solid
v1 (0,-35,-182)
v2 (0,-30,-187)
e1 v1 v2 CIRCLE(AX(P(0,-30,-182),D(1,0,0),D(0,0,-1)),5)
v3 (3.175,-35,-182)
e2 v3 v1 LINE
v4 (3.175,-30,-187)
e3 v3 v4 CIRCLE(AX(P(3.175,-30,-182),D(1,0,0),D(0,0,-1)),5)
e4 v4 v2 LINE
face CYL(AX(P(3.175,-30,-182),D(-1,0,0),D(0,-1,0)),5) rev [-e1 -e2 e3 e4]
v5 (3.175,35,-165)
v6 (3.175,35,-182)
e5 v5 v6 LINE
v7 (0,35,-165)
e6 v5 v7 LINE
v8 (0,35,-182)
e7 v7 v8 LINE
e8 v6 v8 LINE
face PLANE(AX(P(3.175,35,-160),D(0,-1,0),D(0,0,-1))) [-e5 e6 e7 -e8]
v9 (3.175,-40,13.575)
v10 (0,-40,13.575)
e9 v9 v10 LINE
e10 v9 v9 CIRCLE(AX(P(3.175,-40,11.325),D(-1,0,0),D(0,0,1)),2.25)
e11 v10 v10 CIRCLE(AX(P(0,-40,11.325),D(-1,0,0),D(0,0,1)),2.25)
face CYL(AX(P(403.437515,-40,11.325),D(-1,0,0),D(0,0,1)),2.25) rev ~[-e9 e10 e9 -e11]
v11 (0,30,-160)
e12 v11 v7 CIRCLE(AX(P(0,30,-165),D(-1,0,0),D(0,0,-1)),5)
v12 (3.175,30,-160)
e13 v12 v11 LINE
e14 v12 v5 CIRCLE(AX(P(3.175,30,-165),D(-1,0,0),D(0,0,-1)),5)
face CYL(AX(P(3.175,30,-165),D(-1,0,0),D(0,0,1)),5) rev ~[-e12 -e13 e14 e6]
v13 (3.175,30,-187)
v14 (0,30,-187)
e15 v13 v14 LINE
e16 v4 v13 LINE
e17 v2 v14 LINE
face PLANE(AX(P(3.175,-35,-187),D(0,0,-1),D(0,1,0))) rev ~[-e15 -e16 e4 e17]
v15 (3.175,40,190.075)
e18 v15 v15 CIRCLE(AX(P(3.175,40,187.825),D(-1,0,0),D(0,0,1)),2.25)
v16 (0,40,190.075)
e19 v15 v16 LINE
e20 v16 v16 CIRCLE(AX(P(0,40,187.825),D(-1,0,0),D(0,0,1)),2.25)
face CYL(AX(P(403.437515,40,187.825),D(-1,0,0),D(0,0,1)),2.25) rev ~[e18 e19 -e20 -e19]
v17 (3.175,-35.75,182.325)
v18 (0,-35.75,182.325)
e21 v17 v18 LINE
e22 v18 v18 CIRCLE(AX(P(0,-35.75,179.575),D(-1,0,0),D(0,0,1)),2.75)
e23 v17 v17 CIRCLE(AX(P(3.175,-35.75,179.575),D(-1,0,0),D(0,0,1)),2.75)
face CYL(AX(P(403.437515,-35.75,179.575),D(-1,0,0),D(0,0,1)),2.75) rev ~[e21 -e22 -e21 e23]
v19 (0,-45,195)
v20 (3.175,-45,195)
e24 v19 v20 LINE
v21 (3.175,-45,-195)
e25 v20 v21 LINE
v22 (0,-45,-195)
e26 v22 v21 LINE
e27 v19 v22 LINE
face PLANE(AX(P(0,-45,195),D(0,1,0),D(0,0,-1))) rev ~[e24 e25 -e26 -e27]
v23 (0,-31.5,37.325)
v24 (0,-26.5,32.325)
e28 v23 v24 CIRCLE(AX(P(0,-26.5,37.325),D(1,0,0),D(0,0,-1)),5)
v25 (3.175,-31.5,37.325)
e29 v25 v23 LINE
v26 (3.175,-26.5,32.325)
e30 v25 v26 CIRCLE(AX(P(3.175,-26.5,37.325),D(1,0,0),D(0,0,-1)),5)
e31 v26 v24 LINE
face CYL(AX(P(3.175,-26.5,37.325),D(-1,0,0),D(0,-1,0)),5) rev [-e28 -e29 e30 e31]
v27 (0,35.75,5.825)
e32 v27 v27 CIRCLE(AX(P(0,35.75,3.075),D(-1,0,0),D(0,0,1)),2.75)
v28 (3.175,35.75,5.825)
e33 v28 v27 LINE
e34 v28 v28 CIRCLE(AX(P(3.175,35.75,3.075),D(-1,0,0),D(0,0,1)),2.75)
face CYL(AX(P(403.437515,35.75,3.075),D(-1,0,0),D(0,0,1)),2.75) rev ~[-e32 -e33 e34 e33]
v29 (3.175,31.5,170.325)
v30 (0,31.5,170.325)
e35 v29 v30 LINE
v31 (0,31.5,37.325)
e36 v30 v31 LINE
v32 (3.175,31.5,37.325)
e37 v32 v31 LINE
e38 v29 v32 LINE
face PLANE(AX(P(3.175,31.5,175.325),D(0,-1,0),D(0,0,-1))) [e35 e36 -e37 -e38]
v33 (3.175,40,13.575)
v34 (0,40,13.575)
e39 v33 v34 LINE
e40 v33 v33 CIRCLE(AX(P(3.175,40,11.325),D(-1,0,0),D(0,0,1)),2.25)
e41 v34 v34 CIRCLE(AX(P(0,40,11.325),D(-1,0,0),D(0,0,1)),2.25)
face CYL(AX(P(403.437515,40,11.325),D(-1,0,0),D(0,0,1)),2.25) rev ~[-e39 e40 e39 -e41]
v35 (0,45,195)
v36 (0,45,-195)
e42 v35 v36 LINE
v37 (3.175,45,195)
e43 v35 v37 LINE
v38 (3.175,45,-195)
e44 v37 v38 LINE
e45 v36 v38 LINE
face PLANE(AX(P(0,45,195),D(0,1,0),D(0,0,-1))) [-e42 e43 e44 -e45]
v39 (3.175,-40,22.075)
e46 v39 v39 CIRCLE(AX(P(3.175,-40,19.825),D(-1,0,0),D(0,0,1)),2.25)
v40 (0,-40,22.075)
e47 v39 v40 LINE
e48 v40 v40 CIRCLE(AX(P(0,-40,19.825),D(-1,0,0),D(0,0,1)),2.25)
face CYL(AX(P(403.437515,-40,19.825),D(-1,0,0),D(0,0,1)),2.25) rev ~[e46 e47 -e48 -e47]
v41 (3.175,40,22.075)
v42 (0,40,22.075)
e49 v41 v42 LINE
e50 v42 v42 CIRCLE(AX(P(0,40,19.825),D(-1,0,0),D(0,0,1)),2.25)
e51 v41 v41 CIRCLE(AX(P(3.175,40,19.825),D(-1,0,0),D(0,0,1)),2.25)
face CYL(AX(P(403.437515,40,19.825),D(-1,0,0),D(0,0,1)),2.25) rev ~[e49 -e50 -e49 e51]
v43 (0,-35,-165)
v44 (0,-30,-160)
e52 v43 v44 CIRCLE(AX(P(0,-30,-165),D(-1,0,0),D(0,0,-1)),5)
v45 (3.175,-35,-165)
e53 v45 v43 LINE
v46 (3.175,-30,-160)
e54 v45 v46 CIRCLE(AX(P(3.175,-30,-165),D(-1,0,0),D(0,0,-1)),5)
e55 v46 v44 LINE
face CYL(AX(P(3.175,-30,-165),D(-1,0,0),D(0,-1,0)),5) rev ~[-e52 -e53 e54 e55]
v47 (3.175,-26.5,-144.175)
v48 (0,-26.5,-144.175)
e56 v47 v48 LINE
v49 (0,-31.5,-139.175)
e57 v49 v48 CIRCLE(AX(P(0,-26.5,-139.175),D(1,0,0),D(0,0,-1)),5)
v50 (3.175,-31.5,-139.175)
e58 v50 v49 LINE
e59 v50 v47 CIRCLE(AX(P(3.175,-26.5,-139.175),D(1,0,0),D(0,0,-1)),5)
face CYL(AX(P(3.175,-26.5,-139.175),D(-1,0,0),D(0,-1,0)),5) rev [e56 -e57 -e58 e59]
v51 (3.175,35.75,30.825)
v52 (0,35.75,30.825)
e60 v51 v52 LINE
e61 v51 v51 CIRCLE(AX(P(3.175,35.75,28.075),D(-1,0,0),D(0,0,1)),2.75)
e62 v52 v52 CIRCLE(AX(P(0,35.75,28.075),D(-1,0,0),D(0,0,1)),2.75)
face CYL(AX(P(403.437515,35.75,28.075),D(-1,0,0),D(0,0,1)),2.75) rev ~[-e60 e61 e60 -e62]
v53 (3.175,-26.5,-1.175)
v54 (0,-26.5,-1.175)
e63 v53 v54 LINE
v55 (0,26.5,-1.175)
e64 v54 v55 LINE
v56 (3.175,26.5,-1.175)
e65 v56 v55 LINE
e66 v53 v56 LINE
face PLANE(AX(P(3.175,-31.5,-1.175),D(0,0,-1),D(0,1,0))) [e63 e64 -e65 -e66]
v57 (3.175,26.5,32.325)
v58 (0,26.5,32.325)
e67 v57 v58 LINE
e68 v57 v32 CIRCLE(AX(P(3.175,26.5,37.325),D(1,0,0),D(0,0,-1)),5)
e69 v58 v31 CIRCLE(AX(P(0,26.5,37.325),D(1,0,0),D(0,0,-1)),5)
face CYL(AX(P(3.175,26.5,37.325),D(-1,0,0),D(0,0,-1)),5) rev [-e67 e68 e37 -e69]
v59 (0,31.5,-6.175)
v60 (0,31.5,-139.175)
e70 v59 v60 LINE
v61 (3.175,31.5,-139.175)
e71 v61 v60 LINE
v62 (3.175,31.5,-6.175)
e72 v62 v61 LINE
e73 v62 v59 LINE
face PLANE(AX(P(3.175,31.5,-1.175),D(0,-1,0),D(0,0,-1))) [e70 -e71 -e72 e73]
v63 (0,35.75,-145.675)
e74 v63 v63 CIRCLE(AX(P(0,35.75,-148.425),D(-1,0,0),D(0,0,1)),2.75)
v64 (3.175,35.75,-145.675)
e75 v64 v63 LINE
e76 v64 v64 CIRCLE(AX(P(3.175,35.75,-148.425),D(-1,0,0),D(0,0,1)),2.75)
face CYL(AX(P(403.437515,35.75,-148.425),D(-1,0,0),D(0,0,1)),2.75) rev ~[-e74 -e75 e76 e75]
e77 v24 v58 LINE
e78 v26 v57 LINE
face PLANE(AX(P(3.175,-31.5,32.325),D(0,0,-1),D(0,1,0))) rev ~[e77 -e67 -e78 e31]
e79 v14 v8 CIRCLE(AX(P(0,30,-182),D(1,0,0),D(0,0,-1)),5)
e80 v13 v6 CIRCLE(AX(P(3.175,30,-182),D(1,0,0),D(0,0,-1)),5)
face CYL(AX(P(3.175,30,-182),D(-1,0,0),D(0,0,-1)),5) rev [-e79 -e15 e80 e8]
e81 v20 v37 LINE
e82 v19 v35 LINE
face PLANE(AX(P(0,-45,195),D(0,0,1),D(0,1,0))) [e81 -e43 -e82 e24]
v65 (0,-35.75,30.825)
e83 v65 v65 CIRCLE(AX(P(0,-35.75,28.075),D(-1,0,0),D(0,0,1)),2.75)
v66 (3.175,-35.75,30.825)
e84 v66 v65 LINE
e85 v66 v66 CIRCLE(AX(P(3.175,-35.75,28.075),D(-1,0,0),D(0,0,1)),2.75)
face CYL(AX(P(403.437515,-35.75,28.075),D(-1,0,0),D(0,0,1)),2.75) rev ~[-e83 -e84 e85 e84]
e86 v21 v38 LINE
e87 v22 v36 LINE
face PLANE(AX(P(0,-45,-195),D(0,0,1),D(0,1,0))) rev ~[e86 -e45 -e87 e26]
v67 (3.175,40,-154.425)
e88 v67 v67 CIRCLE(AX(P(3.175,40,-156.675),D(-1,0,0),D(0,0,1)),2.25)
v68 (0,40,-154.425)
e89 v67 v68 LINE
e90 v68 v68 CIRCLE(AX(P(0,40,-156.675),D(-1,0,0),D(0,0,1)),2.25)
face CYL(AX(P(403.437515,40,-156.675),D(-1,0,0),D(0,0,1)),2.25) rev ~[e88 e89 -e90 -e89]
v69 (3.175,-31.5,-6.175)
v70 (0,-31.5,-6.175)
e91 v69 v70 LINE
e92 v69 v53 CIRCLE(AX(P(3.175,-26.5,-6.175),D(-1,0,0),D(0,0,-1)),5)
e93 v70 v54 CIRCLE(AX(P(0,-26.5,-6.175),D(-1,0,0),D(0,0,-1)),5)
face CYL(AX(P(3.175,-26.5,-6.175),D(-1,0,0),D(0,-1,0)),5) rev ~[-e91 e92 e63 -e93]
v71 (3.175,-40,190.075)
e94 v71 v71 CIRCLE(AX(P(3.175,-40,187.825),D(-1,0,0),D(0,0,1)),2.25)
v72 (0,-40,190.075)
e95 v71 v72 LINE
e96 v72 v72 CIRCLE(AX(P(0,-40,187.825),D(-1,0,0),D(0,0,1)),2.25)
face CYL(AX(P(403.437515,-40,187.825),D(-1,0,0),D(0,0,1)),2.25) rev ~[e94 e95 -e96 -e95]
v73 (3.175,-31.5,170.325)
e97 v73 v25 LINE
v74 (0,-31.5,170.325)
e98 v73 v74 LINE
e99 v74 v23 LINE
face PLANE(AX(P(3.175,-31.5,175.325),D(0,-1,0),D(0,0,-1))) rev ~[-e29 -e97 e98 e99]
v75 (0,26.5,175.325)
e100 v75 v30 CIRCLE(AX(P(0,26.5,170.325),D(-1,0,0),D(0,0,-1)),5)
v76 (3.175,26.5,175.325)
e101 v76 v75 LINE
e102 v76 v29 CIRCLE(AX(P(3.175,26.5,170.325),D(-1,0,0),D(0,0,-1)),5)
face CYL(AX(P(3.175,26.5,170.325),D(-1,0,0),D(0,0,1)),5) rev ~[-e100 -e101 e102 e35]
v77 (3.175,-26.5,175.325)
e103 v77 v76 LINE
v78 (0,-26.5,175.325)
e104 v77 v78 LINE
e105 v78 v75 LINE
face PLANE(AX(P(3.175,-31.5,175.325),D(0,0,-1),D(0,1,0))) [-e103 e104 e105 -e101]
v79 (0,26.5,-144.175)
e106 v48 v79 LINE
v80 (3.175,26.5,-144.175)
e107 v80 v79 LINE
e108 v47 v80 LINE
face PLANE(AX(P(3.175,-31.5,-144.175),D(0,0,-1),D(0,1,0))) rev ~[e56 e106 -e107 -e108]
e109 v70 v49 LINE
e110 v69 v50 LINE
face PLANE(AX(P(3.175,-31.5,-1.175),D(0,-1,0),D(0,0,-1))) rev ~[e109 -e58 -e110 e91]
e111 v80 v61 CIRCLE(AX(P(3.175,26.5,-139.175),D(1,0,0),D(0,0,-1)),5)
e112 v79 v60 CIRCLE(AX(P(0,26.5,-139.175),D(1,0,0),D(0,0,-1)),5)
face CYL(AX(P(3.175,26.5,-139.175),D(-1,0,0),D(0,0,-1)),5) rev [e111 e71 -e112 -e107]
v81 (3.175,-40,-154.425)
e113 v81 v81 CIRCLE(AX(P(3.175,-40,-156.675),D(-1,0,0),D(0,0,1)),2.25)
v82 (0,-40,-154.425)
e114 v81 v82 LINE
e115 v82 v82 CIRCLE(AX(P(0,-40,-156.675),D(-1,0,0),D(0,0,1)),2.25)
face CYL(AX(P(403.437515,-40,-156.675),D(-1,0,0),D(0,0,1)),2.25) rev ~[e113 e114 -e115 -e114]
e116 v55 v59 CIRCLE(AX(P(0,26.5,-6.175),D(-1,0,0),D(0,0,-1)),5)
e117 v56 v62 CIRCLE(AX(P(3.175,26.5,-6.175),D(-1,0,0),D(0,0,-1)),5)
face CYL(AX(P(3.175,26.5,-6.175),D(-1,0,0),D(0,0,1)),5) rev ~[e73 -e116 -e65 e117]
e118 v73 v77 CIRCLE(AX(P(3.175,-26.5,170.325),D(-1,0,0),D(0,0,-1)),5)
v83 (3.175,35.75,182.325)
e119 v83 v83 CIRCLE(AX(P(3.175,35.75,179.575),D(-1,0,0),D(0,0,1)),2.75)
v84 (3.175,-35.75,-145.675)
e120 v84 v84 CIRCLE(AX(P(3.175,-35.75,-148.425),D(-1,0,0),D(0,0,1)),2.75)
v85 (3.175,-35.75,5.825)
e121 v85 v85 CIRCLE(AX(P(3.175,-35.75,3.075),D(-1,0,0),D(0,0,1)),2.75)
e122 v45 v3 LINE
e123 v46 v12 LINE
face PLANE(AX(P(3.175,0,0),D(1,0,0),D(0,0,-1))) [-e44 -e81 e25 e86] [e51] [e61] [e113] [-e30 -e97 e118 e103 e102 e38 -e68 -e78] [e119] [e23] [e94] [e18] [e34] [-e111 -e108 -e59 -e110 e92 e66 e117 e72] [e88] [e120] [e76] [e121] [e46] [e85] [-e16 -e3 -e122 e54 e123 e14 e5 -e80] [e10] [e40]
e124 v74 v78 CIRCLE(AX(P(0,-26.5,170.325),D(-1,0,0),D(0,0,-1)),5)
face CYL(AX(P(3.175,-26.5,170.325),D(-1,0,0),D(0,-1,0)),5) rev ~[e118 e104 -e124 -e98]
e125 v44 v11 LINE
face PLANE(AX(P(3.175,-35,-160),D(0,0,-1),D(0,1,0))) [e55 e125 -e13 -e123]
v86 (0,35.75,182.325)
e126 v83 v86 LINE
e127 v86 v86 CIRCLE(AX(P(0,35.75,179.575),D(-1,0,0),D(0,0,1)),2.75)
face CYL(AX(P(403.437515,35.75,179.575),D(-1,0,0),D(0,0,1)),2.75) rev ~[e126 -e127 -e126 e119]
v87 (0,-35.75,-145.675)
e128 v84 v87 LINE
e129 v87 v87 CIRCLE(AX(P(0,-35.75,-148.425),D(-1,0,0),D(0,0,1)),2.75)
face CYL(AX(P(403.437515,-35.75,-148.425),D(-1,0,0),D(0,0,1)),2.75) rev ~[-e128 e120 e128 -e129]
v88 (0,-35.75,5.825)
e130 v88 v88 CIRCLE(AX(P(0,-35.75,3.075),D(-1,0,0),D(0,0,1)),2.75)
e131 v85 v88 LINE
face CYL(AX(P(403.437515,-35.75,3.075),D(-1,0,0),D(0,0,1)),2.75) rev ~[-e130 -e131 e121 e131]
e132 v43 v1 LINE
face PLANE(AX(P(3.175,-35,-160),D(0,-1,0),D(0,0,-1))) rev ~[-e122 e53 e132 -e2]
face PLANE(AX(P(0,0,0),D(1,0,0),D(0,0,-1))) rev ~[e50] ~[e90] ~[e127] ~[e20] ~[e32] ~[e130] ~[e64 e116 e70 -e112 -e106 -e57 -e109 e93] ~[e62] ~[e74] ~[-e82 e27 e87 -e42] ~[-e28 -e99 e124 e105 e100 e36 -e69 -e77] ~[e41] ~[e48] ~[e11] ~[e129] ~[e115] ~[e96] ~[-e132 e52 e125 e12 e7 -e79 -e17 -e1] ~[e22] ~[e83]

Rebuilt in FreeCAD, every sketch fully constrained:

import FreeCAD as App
import Part
import Sketcher
from FreeCAD import Vector


def edges_at(feature, points):
    """Names of the edges that pass closest to the given points."""
    edges = feature.Shape.Edges
    near = lambda p: min(range(len(edges)), key=lambda i: edges[i].distToShape(Part.Vertex(*p))[0])
    return sorted({f"Edge{near(p) + 1}" for p in points})


def add_polygon(sketch, points):
    """Adds a closed chain of lines whose ends are joined by coincident constraints."""
    first, n = sketch.GeometryCount, len(points)
    for a, b in zip(points, points[1:] + points[:1]):
        sketch.addGeometry(Part.LineSegment(App.Vector(*a, 0), App.Vector(*b, 0)), False)
    for i in range(n):
        sketch.addConstraint(Sketcher.Constraint("Coincident", first + i, 2, first + (i + 1) % n, 1))

doc = App.newDocument("Part")
params = doc.addObject("Spreadsheet::Sheet", "Params")
for row, (alias, value) in enumerate([
    ("sketch1_width", "90 mm"),
    ("sketch1_height", "390 mm"),
    ("pad1_length", "3.175 mm"),
    ("sketch2_width", "63 mm"),
    ("sketch2_height", "143 mm"),
    ("pocket1_length", "3.175 mm"),
    ("sketch3_diameter", "5.5 mm"),
    ("hole_diameter", "5.5 mm"),
    ("sketch4_width", "70 mm"),
    ("sketch4_height", "27 mm"),
    ("pocket2_length", "3.175 mm"),
    ("sketch5_diameter", "4.5 mm"),
    ("hole2_diameter", "4.5 mm"),
    ("fillet_radius", "5 mm"),
], start=1):
    params.set(f"A{row}", alias)
    params.set(f"B{row}", "=" + value)
    params.setAlias(f"B{row}", alias)

body = doc.addObject("PartDesign::Body", "Body")

# Sketch on YZ plane
sketch1 = body.newObject("Sketcher::SketchObject", "Sketch")
sketch1.AttachmentSupport = (doc.getObject("YZ_Plane"), [""])
sketch1.MapMode = "FlatFace"
add_polygon(sketch1, [(45, 195), (-45, 195), (-45, -195), (45, -195)])  # lines 0-3
sketch1.addConstraint([
    Sketcher.Constraint("Horizontal", 0),
    Sketcher.Constraint("Vertical", 1),
    Sketcher.Constraint("Horizontal", 2),
    Sketcher.Constraint("Vertical", 3),
    Sketcher.Constraint("Symmetric", 0, 2, 2, 2, -1, 1),
    Sketcher.Constraint("DistanceX", 0, 2, 0, 1, 90.0),
    Sketcher.Constraint("DistanceY", 1, 2, 1, 1, 390.0),
])
sketch1.setExpression("Constraints[9]", "Params.sketch1_width")
sketch1.setExpression("Constraints[10]", "Params.sketch1_height")
pad1 = body.newObject("PartDesign::Pad", "Pad")
pad1.Profile = sketch1
pad1.setExpression("Length", "Params.pad1_length")

# Sketch on YZ plane
sketch2 = body.newObject("Sketcher::SketchObject", "Sketch001")
sketch2.AttachmentSupport = (doc.getObject("YZ_Plane"), [""])
sketch2.MapMode = "FlatFace"
sketch2.AttachmentOffset = App.Placement(Vector(0, 0, 3.175), App.Rotation())
add_polygon(sketch2, [(31.5, -1.175), (-31.5, -1.175), (-31.5, -144.175), (31.5, -144.175)])  # lines 0-3
add_polygon(sketch2, [(31.5, 175.325), (-31.5, 175.325), (-31.5, 32.325), (31.5, 32.325)])  # lines 4-7
sketch2.addConstraint([
    Sketcher.Constraint("Horizontal", 0),
    Sketcher.Constraint("Vertical", 1),
    Sketcher.Constraint("Horizontal", 2),
    Sketcher.Constraint("Vertical", 3),
    Sketcher.Constraint("Horizontal", 4),
    Sketcher.Constraint("Vertical", 5),
    Sketcher.Constraint("Horizontal", 6),
    Sketcher.Constraint("Vertical", 7),
    Sketcher.Constraint("Vertical", 1, 2, 4, 2),
    Sketcher.Constraint("Vertical", 3, 2, 6, 2),
    Sketcher.Constraint("Equal", 3, 5),
    Sketcher.Constraint("DistanceX", 0, 2, 0, 1, 63.0),
    Sketcher.Constraint("DistanceY", 1, 2, 1, 1, 143.0),
    Sketcher.Constraint("DistanceX", 0, 2, -1, 1, 31.5),
    Sketcher.Constraint("DistanceY", 0, 2, 4, 2, 176.5),
    Sketcher.Constraint("DistanceY", 0, 2, -1, 1, 1.175),
])
sketch2.setExpression("Constraints[19]", "Params.sketch2_width")
sketch2.setExpression("Constraints[20]", "Params.sketch2_height")
pocket1 = body.newObject("PartDesign::Pocket", "Pocket")
pocket1.Profile = sketch2
pocket1.setExpression("Length", "Params.pocket1_length")

# Sketch on YZ plane
sketch3 = body.newObject("Sketcher::SketchObject", "Sketch002")
sketch3.AttachmentSupport = (doc.getObject("YZ_Plane"), [""])
sketch3.MapMode = "FlatFace"
sketch3.AttachmentOffset = App.Placement(Vector(0, 0, 3.175), App.Rotation())
sketch3.addGeometry([
    Part.Circle(Vector(0, 103.825, 0), Vector(0, 0, 1), 2.75),  # 0
    Part.Circle(Vector(35.75, 28.075, 0), Vector(0, 0, 1), 2.75),  # 1
    Part.Circle(Vector(-35.75, 179.575, 0), Vector(0, 0, 1), 2.75),  # 2
    Part.Circle(Vector(35.75, 179.575, 0), Vector(0, 0, 1), 2.75),  # 3
    Part.Circle(Vector(-35.75, 28.075, 0), Vector(0, 0, 1), 2.75),  # 4
    Part.Circle(Vector(0, -72.675, 0), Vector(0, 0, 1), 2.75),  # 5
    Part.Circle(Vector(35.75, -148.425, 0), Vector(0, 0, 1), 2.75),  # 6
    Part.Circle(Vector(-35.75, 3.075, 0), Vector(0, 0, 1), 2.75),  # 7
    Part.Circle(Vector(35.75, 3.075, 0), Vector(0, 0, 1), 2.75),  # 8
    Part.Circle(Vector(-35.75, -148.425, 0), Vector(0, 0, 1), 2.75),  # 9
], False)
sketch3.addConstraint([
    Sketcher.Constraint("Equal", 0, 1),
    Sketcher.Constraint("Equal", 1, 2),
    Sketcher.Constraint("Equal", 2, 3),
    Sketcher.Constraint("Equal", 3, 4),
    Sketcher.Constraint("Equal", 4, 5),
    Sketcher.Constraint("Equal", 5, 6),
    Sketcher.Constraint("Equal", 6, 7),
    Sketcher.Constraint("Equal", 7, 8),
    Sketcher.Constraint("Equal", 8, 9),
    Sketcher.Constraint("Symmetric", 2, 3, 3, 3, -2),
    Sketcher.Constraint("Symmetric", 1, 3, 4, 3, -2),
    Sketcher.Constraint("Symmetric", 7, 3, 8, 3, -2),
    Sketcher.Constraint("Symmetric", 6, 3, 9, 3, -2),
    Sketcher.Constraint("PointOnObject", 0, 3, -2),
    Sketcher.Constraint("PointOnObject", 5, 3, -2),
    Sketcher.Constraint("Vertical", 1, 3, 3, 3),
    Sketcher.Constraint("Vertical", 3, 3, 6, 3),
    Sketcher.Constraint("Vertical", 4, 3, 7, 3),
    Sketcher.Constraint("Diameter", 0, 5.5),
    Sketcher.Constraint("DistanceY", 6, 3, 3, 3, 328.0),
    Sketcher.Constraint("DistanceY", 7, 3, 4, 3, 25.0),
    Sketcher.Constraint("DistanceX", 2, 3, 1, 3, 71.5),
    Sketcher.Constraint("DistanceY", 1, 3, 2, 3, 151.5),
    Sketcher.Constraint("DistanceY", 5, 3, 0, 3, 176.5),
    Sketcher.Constraint("DistanceY", 1, 3, 0, 3, 75.75),
    Sketcher.Constraint("DistanceY", -1, 1, 0, 3, 103.825),
])
sketch3.setExpression("Constraints[18]", "Params.sketch3_diameter")
doc.recompute()
hole = body.newObject("PartDesign::Hole", "Hole")
hole.Profile = sketch3
hole.ThreadType = "None"
hole.setExpression("Diameter", "Params.hole_diameter")
hole.DepthType = "ThroughAll"

# Sketch on YZ plane
sketch4 = body.newObject("Sketcher::SketchObject", "Sketch003")
sketch4.AttachmentSupport = (doc.getObject("YZ_Plane"), [""])
sketch4.MapMode = "FlatFace"
sketch4.AttachmentOffset = App.Placement(Vector(0, 0, 3.175), App.Rotation())
add_polygon(sketch4, [(35, -160), (-35, -160), (-35, -187), (35, -187)])  # lines 0-3
sketch4.addConstraint([
    Sketcher.Constraint("Horizontal", 0),
    Sketcher.Constraint("Vertical", 1),
    Sketcher.Constraint("Horizontal", 2),
    Sketcher.Constraint("Vertical", 3),
    Sketcher.Constraint("DistanceX", 0, 2, 0, 1, 70.0),
    Sketcher.Constraint("DistanceY", 1, 2, 1, 1, 27.0),
    Sketcher.Constraint("DistanceX", 0, 2, -1, 1, 35.0),
    Sketcher.Constraint("DistanceY", 0, 2, -1, 1, 160.0),
])
sketch4.setExpression("Constraints[8]", "Params.sketch4_width")
sketch4.setExpression("Constraints[9]", "Params.sketch4_height")
pocket2 = body.newObject("PartDesign::Pocket", "Pocket001")
pocket2.Profile = sketch4
pocket2.setExpression("Length", "Params.pocket2_length")

# Sketch on YZ plane
sketch5 = body.newObject("Sketcher::SketchObject", "Sketch004")
sketch5.AttachmentSupport = (doc.getObject("YZ_Plane"), [""])
sketch5.MapMode = "FlatFace"
sketch5.AttachmentOffset = App.Placement(Vector(0, 0, 3.175), App.Rotation())
sketch5.addGeometry([
    Part.Circle(Vector(0, 103.825, 0), Vector(0, 0, 1), 2.25),  # 0
    Part.Circle(Vector(40, 19.825, 0), Vector(0, 0, 1), 2.25),  # 1
    Part.Circle(Vector(-40, 187.825, 0), Vector(0, 0, 1), 2.25),  # 2
    Part.Circle(Vector(40, 187.825, 0), Vector(0, 0, 1), 2.25),  # 3
    Part.Circle(Vector(-40, 19.825, 0), Vector(0, 0, 1), 2.25),  # 4
    Part.Circle(Vector(0, -72.675, 0), Vector(0, 0, 1), 2.25),  # 5
    Part.Circle(Vector(40, -156.675, 0), Vector(0, 0, 1), 2.25),  # 6
    Part.Circle(Vector(-40, 11.325, 0), Vector(0, 0, 1), 2.25),  # 7
    Part.Circle(Vector(40, 11.325, 0), Vector(0, 0, 1), 2.25),  # 8
    Part.Circle(Vector(-40, -156.675, 0), Vector(0, 0, 1), 2.25),  # 9
], False)
sketch5.addConstraint([
    Sketcher.Constraint("Equal", 0, 1),
    Sketcher.Constraint("Equal", 1, 2),
    Sketcher.Constraint("Equal", 2, 3),
    Sketcher.Constraint("Equal", 3, 4),
    Sketcher.Constraint("Equal", 4, 5),
    Sketcher.Constraint("Equal", 5, 6),
    Sketcher.Constraint("Equal", 6, 7),
    Sketcher.Constraint("Equal", 7, 8),
    Sketcher.Constraint("Equal", 8, 9),
    Sketcher.Constraint("Symmetric", 2, 3, 3, 3, -2),
    Sketcher.Constraint("Symmetric", 1, 3, 4, 3, -2),
    Sketcher.Constraint("Symmetric", 7, 3, 8, 3, -2),
    Sketcher.Constraint("Symmetric", 6, 3, 9, 3, -2),
    Sketcher.Constraint("PointOnObject", 0, 3, -2),
    Sketcher.Constraint("PointOnObject", 5, 3, -2),
    Sketcher.Constraint("Vertical", 1, 3, 3, 3),
    Sketcher.Constraint("Vertical", 3, 3, 6, 3),
    Sketcher.Constraint("Vertical", 4, 3, 7, 3),
    Sketcher.Constraint("Diameter", 0, 4.5),
    Sketcher.Constraint("DistanceX", -1, 1, 1, 3, 40.0),
    Sketcher.Constraint("DistanceY", 1, 3, 0, 3, 84.0),
    Sketcher.Constraint("DistanceY", 0, 3, 2, 3, 84.0),
    Sketcher.Constraint("DistanceY", 6, 3, 5, 3, 84.0),
    Sketcher.Constraint("DistanceY", 5, 3, 7, 3, 84.0),
    Sketcher.Constraint("DistanceY", 5, 3, 1, 3, 92.5),
    Sketcher.Constraint("DistanceY", -1, 1, 0, 3, 103.825),
])
sketch5.setExpression("Constraints[18]", "Params.sketch5_diameter")
doc.recompute()
hole2 = body.newObject("PartDesign::Hole", "Hole001")
hole2.Profile = sketch5
hole2.ThreadType = "None"
hole2.setExpression("Diameter", "Params.hole2_diameter")
hole2.DepthType = "ThroughAll"
doc.recompute()

fillet = body.newObject("PartDesign::Fillet", "Fillet")
fillet.Base = (hole2, edges_at(hole2, [
    (1.587, 35, -187),
    (1.587, -35, -187),
    (1.587, -35, -160),
    (1.587, 35, -160),
    (1.587, 31.5, 32.325),
    (1.587, -31.5, 32.325),
    (1.587, -31.5, 175.325),
    (1.587, 31.5, 175.325),
    (1.587, 31.5, -144.175),
    (1.587, -31.5, -144.175),
    (1.587, -31.5, -1.175),
    (1.587, 31.5, -1.175),
]))
fillet.setExpression("Radius", "Params.fillet_radius")

doc.recompute()
